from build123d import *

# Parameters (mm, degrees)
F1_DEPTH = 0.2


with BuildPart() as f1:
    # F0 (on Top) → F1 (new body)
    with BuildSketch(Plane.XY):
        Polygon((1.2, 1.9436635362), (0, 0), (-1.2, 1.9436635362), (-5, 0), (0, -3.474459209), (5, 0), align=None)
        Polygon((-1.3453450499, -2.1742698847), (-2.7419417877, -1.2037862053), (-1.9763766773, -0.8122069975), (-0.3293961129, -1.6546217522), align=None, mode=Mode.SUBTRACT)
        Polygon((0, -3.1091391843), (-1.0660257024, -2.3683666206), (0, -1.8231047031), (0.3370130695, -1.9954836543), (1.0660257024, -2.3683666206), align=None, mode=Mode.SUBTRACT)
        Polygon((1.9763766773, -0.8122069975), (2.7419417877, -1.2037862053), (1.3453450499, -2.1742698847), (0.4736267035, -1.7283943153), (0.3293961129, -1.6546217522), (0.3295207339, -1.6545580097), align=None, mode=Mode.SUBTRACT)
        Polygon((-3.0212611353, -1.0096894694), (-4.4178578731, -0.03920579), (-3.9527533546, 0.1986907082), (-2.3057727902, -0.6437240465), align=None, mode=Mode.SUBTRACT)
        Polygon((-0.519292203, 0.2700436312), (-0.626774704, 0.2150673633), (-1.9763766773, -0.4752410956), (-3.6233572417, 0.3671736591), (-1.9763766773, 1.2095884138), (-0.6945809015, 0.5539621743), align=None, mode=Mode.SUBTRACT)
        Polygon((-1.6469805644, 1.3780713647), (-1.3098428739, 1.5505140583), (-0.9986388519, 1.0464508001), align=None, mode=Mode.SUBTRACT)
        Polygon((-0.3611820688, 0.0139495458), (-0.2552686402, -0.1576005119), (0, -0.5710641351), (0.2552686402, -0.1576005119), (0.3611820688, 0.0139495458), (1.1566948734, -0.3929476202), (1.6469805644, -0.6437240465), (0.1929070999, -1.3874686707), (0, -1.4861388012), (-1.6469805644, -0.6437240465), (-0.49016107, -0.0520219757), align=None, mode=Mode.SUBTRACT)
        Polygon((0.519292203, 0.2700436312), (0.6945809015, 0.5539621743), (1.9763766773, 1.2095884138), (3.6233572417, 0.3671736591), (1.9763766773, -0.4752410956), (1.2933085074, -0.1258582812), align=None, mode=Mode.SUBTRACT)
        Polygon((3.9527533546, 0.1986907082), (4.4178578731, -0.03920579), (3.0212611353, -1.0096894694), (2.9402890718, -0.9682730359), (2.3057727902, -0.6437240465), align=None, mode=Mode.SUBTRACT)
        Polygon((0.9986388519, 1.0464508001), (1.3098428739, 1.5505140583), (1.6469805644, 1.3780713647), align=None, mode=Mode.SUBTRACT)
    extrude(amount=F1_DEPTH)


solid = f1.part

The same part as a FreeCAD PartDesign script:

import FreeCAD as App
import Part
import Sketcher

V = App.Vector
Q = App.Units.Quantity

doc = App.newDocument("Part")
body = doc.addObject("PartDesign::Body", "Body")

# Sketch on XY plane
sketch1 = body.newObject("Sketcher::SketchObject", "Sketch")
sketch1.AttachmentSupport = (doc.getObject("XY_Plane"), [""])
sketch1.MapMode = "FlatFace"
sketch1.addGeometry(Part.LineSegment(V(1.2, 1.943664, 0), V(0, 0, 0)), False)
sketch1.addGeometry(Part.LineSegment(V(0, 0, 0), V(-1.2, 1.943664, 0)), False)
sketch1.addGeometry(Part.LineSegment(V(-1.2, 1.943664, 0), V(-5, 0, 0)), False)
sketch1.addGeometry(Part.LineSegment(V(-5, 0, 0), V(0, -3.474459, 0)), False)
sketch1.addGeometry(Part.LineSegment(V(0, -3.474459, 0), V(5, 0, 0)), False)
sketch1.addGeometry(Part.LineSegment(V(5, 0, 0), V(1.2, 1.943664, 0)), False)
sketch1.addGeometry(Part.LineSegment(V(-0.329396, -1.654622, 0), V(-1.345345, -2.17427, 0)), False)
sketch1.addGeometry(Part.LineSegment(V(-1.345345, -2.17427, 0), V(-2.741942, -1.203786, 0)), False)
sketch1.addGeometry(Part.LineSegment(V(-2.741942, -1.203786, 0), V(-1.976377, -0.812207, 0)), False)
sketch1.addGeometry(Part.LineSegment(V(-1.976377, -0.812207, 0), V(-0.329396, -1.654622, 0)), False)
sketch1.addGeometry(Part.LineSegment(V(1.066026, -2.368367, 0), V(0, -3.109139, 0)), False)
sketch1.addGeometry(Part.LineSegment(V(0, -3.109139, 0), V(-1.066026, -2.368367, 0)), False)
sketch1.addGeometry(Part.LineSegment(V(-1.066026, -2.368367, 0), V(0, -1.823105, 0)), False)
sketch1.addGeometry(Part.LineSegment(V(0, -1.823105, 0), V(0.337013, -1.995484, 0)), False)
sketch1.addGeometry(Part.LineSegment(V(0.337013, -1.995484, 0), V(1.066026, -2.368367, 0)), False)
sketch1.addGeometry(Part.LineSegment(V(0.329521, -1.654558, 0), V(1.976377, -0.812207, 0)), False)
sketch1.addGeometry(Part.LineSegment(V(1.976377, -0.812207, 0), V(2.741942, -1.203786, 0)), False)
sketch1.addGeometry(Part.LineSegment(V(2.741942, -1.203786, 0), V(1.345345, -2.17427, 0)), False)
sketch1.addGeometry(Part.LineSegment(V(1.345345, -2.17427, 0), V(0.473627, -1.728394, 0)), False)
sketch1.addGeometry(Part.LineSegment(V(0.473627, -1.728394, 0), V(0.329396, -1.654622, 0)), False)
sketch1.addGeometry(Part.LineSegment(V(0.329396, -1.654622, 0), V(0.329521, -1.654558, 0)), False)
sketch1.addGeometry(Part.LineSegment(V(-2.305773, -0.643724, 0), V(-3.021261, -1.009689, 0)), False)
sketch1.addGeometry(Part.LineSegment(V(-3.021261, -1.009689, 0), V(-4.417858, -0.039206, 0)), False)
sketch1.addGeometry(Part.LineSegment(V(-4.417858, -0.039206, 0), V(-3.952753, 0.198691, 0)), False)
sketch1.addGeometry(Part.LineSegment(V(-3.952753, 0.198691, 0), V(-2.305773, -0.643724, 0)), False)
sketch1.addGeometry(Part.LineSegment(V(-0.694581, 0.553962, 0), V(-0.519292, 0.270044, 0)), False)
sketch1.addGeometry(Part.LineSegment(V(-0.519292, 0.270044, 0), V(-0.626775, 0.215067, 0)), False)
sketch1.addGeometry(Part.LineSegment(V(-0.626775, 0.215067, 0), V(-1.976377, -0.475241, 0)), False)
sketch1.addGeometry(Part.LineSegment(V(-1.976377, -0.475241, 0), V(-3.623357, 0.367174, 0)), False)
sketch1.addGeometry(Part.LineSegment(V(-3.623357, 0.367174, 0), V(-1.976377, 1.209588, 0)), False)
sketch1.addGeometry(Part.LineSegment(V(-1.976377, 1.209588, 0), V(-0.694581, 0.553962, 0)), False)
sketch1.addGeometry(Part.LineSegment(V(-0.998639, 1.046451, 0), V(-1.646981, 1.378071, 0)), False)
sketch1.addGeometry(Part.LineSegment(V(-1.646981, 1.378071, 0), V(-1.309843, 1.550514, 0)), False)
sketch1.addGeometry(Part.LineSegment(V(-1.309843, 1.550514, 0), V(-0.998639, 1.046451, 0)), False)
sketch1.addGeometry(Part.LineSegment(V(-0.490161, -0.052022, 0), V(-0.361182, 0.01395, 0)), False)
sketch1.addGeometry(Part.LineSegment(V(-0.361182, 0.01395, 0), V(-0.255269, -0.157601, 0)), False)
sketch1.addGeometry(Part.LineSegment(V(-0.255269, -0.157601, 0), V(0, -0.571064, 0)), False)
sketch1.addGeometry(Part.LineSegment(V(0, -0.571064, 0), V(0.255269, -0.157601, 0)), False)
sketch1.addGeometry(Part.LineSegment(V(0.255269, -0.157601, 0), V(0.361182, 0.01395, 0)), False)
sketch1.addGeometry(Part.LineSegment(V(0.361182, 0.01395, 0), V(1.156695, -0.392948, 0)), False)
sketch1.addGeometry(Part.LineSegment(V(1.156695, -0.392948, 0), V(1.646981, -0.643724, 0)), False)
sketch1.addGeometry(Part.LineSegment(V(1.646981, -0.643724, 0), V(0.192907, -1.387469, 0)), False)
sketch1.addGeometry(Part.LineSegment(V(0.192907, -1.387469, 0), V(0, -1.486139, 0)), False)
sketch1.addGeometry(Part.LineSegment(V(0, -1.486139, 0), V(-1.646981, -0.643724, 0)), False)
sketch1.addGeometry(Part.LineSegment(V(-1.646981, -0.643724, 0), V(-0.490161, -0.052022, 0)), False)
sketch1.addGeometry(Part.LineSegment(V(1.293309, -0.125858, 0), V(0.519292, 0.270044, 0)), False)
sketch1.addGeometry(Part.LineSegment(V(0.519292, 0.270044, 0), V(0.694581, 0.553962, 0)), False)
sketch1.addGeometry(Part.LineSegment(V(0.694581, 0.553962, 0), V(1.976377, 1.209588, 0)), False)
sketch1.addGeometry(Part.LineSegment(V(1.976377, 1.209588, 0), V(3.623357, 0.367174, 0)), False)
sketch1.addGeometry(Part.LineSegment(V(3.623357, 0.367174, 0), V(1.976377, -0.475241, 0)), False)
sketch1.addGeometry(Part.LineSegment(V(1.976377, -0.475241, 0), V(1.293309, -0.125858, 0)), False)
sketch1.addGeometry(Part.LineSegment(V(2.305773, -0.643724, 0), V(3.952753, 0.198691, 0)), False)
sketch1.addGeometry(Part.LineSegment(V(3.952753, 0.198691, 0), V(4.417858, -0.039206, 0)), False)
sketch1.addGeometry(Part.LineSegment(V(4.417858, -0.039206, 0), V(3.021261, -1.009689, 0)), False)
sketch1.addGeometry(Part.LineSegment(V(3.021261, -1.009689, 0), V(2.940289, -0.968273, 0)), False)
sketch1.addGeometry(Part.LineSegment(V(2.940289, -0.968273, 0), V(2.305773, -0.643724, 0)), False)
sketch1.addGeometry(Part.LineSegment(V(1.646981, 1.378071, 0), V(0.998639, 1.046451, 0)), False)
sketch1.addGeometry(Part.LineSegment(V(0.998639, 1.046451, 0), V(1.309843, 1.550514, 0)), False)
sketch1.addGeometry(Part.LineSegment(V(1.309843, 1.550514, 0), V(1.646981, 1.378071, 0)), False)
sketch1.addConstraint(Sketcher.Constraint("Coincident", 0, 2, 1, 1))
sketch1.addConstraint(Sketcher.Constraint("Coincident", 1, 2, 2, 1))
sketch1.addConstraint(Sketcher.Constraint("Coincident", 2, 2, 3, 1))
sketch1.addConstraint(Sketcher.Constraint("Coincident", 3, 2, 4, 1))
sketch1.addConstraint(Sketcher.Constraint("Coincident", 4, 2, 5, 1))
sketch1.addConstraint(Sketcher.Constraint("Coincident", 5, 2, 0, 1))
sketch1.addConstraint(Sketcher.Constraint("Coincident", 6, 2, 7, 1))
sketch1.addConstraint(Sketcher.Constraint("Coincident", 7, 2, 8, 1))
sketch1.addConstraint(Sketcher.Constraint("Coincident", 8, 2, 9, 1))
sketch1.addConstraint(Sketcher.Constraint("Coincident", 9, 2, 6, 1))
sketch1.addConstraint(Sketcher.Constraint("Coincident", 10, 2, 11, 1))
sketch1.addConstraint(Sketcher.Constraint("Coincident", 11, 2, 12, 1))
sketch1.addConstraint(Sketcher.Constraint("Coincident", 12, 2, 13, 1))
sketch1.addConstraint(Sketcher.Constraint("Coincident", 13, 2, 14, 1))
sketch1.addConstraint(Sketcher.Constraint("Coincident", 14, 2, 10, 1))
sketch1.addConstraint(Sketcher.Constraint("Coincident", 15, 2, 16, 1))
sketch1.addConstraint(Sketcher.Constraint("Coincident", 16, 2, 17, 1))
sketch1.addConstraint(Sketcher.Constraint("Coincident", 17, 2, 18, 1))
sketch1.addConstraint(Sketcher.Constraint("Coincident", 18, 2, 19, 1))
sketch1.addConstraint(Sketcher.Constraint("Coincident", 19, 2, 20, 1))
sketch1.addConstraint(Sketcher.Constraint("Coincident", 20, 2, 15, 1))
sketch1.addConstraint(Sketcher.Constraint("Coincident", 21, 2, 22, 1))
sketch1.addConstraint(Sketcher.Constraint("Coincident", 22, 2, 23, 1))
sketch1.addConstraint(Sketcher.Constraint("Coincident", 23, 2, 24, 1))
sketch1.addConstraint(Sketcher.Constraint("Coincident", 24, 2, 21, 1))
sketch1.addConstraint(Sketcher.Constraint("Coincident", 25, 2, 26, 1))
sketch1.addConstraint(Sketcher.Constraint("Coincident", 26, 2, 27, 1))
sketch1.addConstraint(Sketcher.Constraint("Coincident", 27, 2, 28, 1))
sketch1.addConstraint(Sketcher.Constraint("Coincident", 28, 2, 29, 1))
sketch1.addConstraint(Sketcher.Constraint("Coincident", 29, 2, 30, 1))
sketch1.addConstraint(Sketcher.Constraint("Coincident", 30, 2, 25, 1))
sketch1.addConstraint(Sketcher.Constraint("Coincident", 31, 2, 32, 1))
sketch1.addConstraint(Sketcher.Constraint("Coincident", 32, 2, 33, 1))
sketch1.addConstraint(Sketcher.Constraint("Coincident", 33, 2, 31, 1))
sketch1.addConstraint(Sketcher.Constraint("Coincident", 34, 2, 35, 1))
sketch1.addConstraint(Sketcher.Constraint("Coincident", 35, 2, 36, 1))
sketch1.addConstraint(Sketcher.Constraint("Coincident", 36, 2, 37, 1))
sketch1.addConstraint(Sketcher.Constraint("Coincident", 37, 2, 38, 1))
sketch1.addConstraint(Sketcher.Constraint("Coincident", 38, 2, 39, 1))
sketch1.addConstraint(Sketcher.Constraint("Coincident", 39, 2, 40, 1))
sketch1.addConstraint(Sketcher.Constraint("Coincident", 40, 2, 41, 1))
sketch1.addConstraint(Sketcher.Constraint("Coincident", 41, 2, 42, 1))
sketch1.addConstraint(Sketcher.Constraint("Coincident", 42, 2, 43, 1))
sketch1.addConstraint(Sketcher.Constraint("Coincident", 43, 2, 44, 1))
sketch1.addConstraint(Sketcher.Constraint("Coincident", 44, 2, 34, 1))
sketch1.addConstraint(Sketcher.Constraint("Coincident", 45, 2, 46, 1))
sketch1.addConstraint(Sketcher.Constraint("Coincident", 46, 2, 47, 1))
sketch1.addConstraint(Sketcher.Constraint("Coincident", 47, 2, 48, 1))
sketch1.addConstraint(Sketcher.Constraint("Coincident", 48, 2, 49, 1))
sketch1.addConstraint(Sketcher.Constraint("Coincident", 49, 2, 50, 1))
sketch1.addConstraint(Sketcher.Constraint("Coincident", 50, 2, 45, 1))
sketch1.addConstraint(Sketcher.Constraint("Coincident", 51, 2, 52, 1))
sketch1.addConstraint(Sketcher.Constraint("Coincident", 52, 2, 53, 1))
sketch1.addConstraint(Sketcher.Constraint("Coincident", 53, 2, 54, 1))
sketch1.addConstraint(Sketcher.Constraint("Coincident", 54, 2, 55, 1))
sketch1.addConstraint(Sketcher.Constraint("Coincident", 55, 2, 51, 1))
sketch1.addConstraint(Sketcher.Constraint("Coincident", 56, 2, 57, 1))
sketch1.addConstraint(Sketcher.Constraint("Coincident", 57, 2, 58, 1))
sketch1.addConstraint(Sketcher.Constraint("Coincident", 58, 2, 56, 1))
sketch1.addConstraint(Sketcher.Constraint("Coincident", 0, 2, -1, 1))
sketch1.addConstraint(Sketcher.Constraint("Symmetric", 2, 2, 4, 2, -1, 1))
sketch1.addConstraint(Sketcher.Constraint("Symmetric", 1, 2, 5, 2, -2))
sketch1.addConstraint(Sketcher.Constraint("Symmetric", 11, 2, 14, 2, -2))
sketch1.addConstraint(Sketcher.Constraint("Symmetric", 8, 2, 15, 2, -2))
sketch1.addConstraint(Sketcher.Constraint("Symmetric", 7, 2, 16, 2, -2))
sketch1.addConstraint(Sketcher.Constraint("Symmetric", 6, 2, 17, 2, -2))
sketch1.addConstraint(Sketcher.Constraint("Symmetric", 9, 2, 19, 2, -2))
sketch1.addConstraint(Sketcher.Constraint("Symmetric", 35, 2, 37, 2, -2))
sketch1.addConstraint(Sketcher.Constraint("Symmetric", 34, 2, 38, 2, -2))
sketch1.addConstraint(Sketcher.Constraint("Symmetric", 40, 2, 43, 2, -2))
sketch1.addConstraint(Sketcher.Constraint("Symmetric", 25, 2, 45, 2, -2))
sketch1.addConstraint(Sketcher.Constraint("Symmetric", 30, 2, 46, 2, -2))
sketch1.addConstraint(Sketcher.Constraint("Symmetric", 29, 2, 47, 2, -2))
sketch1.addConstraint(Sketcher.Constraint("Symmetric", 28, 2, 48, 2, -2))
sketch1.addConstraint(Sketcher.Constraint("Symmetric", 27, 2, 49, 2, -2))
sketch1.addConstraint(Sketcher.Constraint("Symmetric", 23, 2, 51, 2, -2))
sketch1.addConstraint(Sketcher.Constraint("Symmetric", 22, 2, 52, 2, -2))
sketch1.addConstraint(Sketcher.Constraint("Symmetric", 21, 2, 53, 2, -2))
sketch1.addConstraint(Sketcher.Constraint("Symmetric", 24, 2, 55, 2, -2))
sketch1.addConstraint(Sketcher.Constraint("Symmetric", 33, 2, 56, 2, -2))
sketch1.addConstraint(Sketcher.Constraint("Symmetric", 32, 2, 57, 2, -2))
sketch1.addConstraint(Sketcher.Constraint("Symmetric", 31, 2, 58, 2, -2))
sketch1.addConstraint(Sketcher.Constraint("PointOnObject", 2, 2, -1))
sketch1.addConstraint(Sketcher.Constraint("PointOnObject", 3, 2, -2))
sketch1.addConstraint(Sketcher.Constraint("PointOnObject", 10, 2, -2))
sketch1.addConstraint(Sketcher.Constraint("PointOnObject", 12, 2, -2))
sketch1.addConstraint(Sketcher.Constraint("PointOnObject", 36, 2, -2))
sketch1.addConstraint(Sketcher.Constraint("PointOnObject", 42, 2, -2))
sketch1.addConstraint(Sketcher.Constraint("Parallel", 2, 6))
sketch1.addConstraint(Sketcher.Constraint("Parallel", 3, 7))
sketch1.addConstraint(Sketcher.Constraint("Parallel", 6, 8))
sketch1.addConstraint(Sketcher.Constraint("Parallel", 5, 9))
sketch1.addConstraint(Sketcher.Constraint("Parallel", 4, 10))
sketch1.addConstraint(Sketcher.Constraint("Parallel", 8, 12))
sketch1.addConstraint(Sketcher.Constraint("Parallel", 9, 13))
sketch1.addConstraint(Sketcher.Constraint("Parallel", 12, 15))
sketch1.addConstraint(Sketcher.Constraint("Parallel", 16, 18))
sketch1.addConstraint(Sketcher.Constraint("Parallel", 15, 21))
sketch1.addConstraint(Sketcher.Constraint("Parallel", 11, 22))
sketch1.addConstraint(Sketcher.Constraint("Parallel", 21, 23))
sketch1.addConstraint(Sketcher.Constraint("Parallel", 19, 24))
sketch1.addConstraint(Sketcher.Constraint("Parallel", 1, 25))
sketch1.addConstraint(Sketcher.Constraint("Parallel", 23, 26))
sketch1.addConstraint(Sketcher.Constraint("Parallel", 26, 27))
sketch1.addConstraint(Sketcher.Constraint("Parallel", 24, 28))
sketch1.addConstraint(Sketcher.Constraint("Parallel", 27, 29))
sketch1.addConstraint(Sketcher.Constraint("Parallel", 28, 30))
sketch1.addConstraint(Sketcher.Constraint("Parallel", 30, 31))
sketch1.addConstraint(Sketcher.Constraint("Parallel", 29, 32))
sketch1.addConstraint(Sketcher.Constraint("Parallel", 25, 33))
sketch1.addConstraint(Sketcher.Constraint("Parallel", 32, 34))
sketch1.addConstraint(Sketcher.Constraint("Parallel", 33, 35))
sketch1.addConstraint(Sketcher.Constraint("Parallel", 35, 36))
sketch1.addConstraint(Sketcher.Constraint("Parallel", 31, 39))
sketch1.addConstraint(Sketcher.Constraint("Parallel", 39, 40))
sketch1.addConstraint(Sketcher.Constraint("Parallel", 34, 41))
sketch1.addConstraint(Sketcher.Constraint("Parallel", 41, 42))
sketch1.addConstraint(Sketcher.Constraint("Parallel", 43, 45))
sketch1.addConstraint(Sketcher.Constraint("Parallel", 52, 54))
sketch1.addConstraint(Sketcher.Constraint("Horizontal", 24, 2, 40, 2))
sketch1.addConstraint(Sketcher.Constraint("Vertical", 8, 2, 27, 2))
sketch1.addConstraint(Sketcher.Constraint("Vertical", 27, 2, 29, 2))
sketch1.addConstraint(Sketcher.Constraint("Vertical", 31, 2, 43, 2))
sketch1.addConstraint(Sketcher.Constraint("Equal", 17, 22))
sketch1.addConstraint(Sketcher.Constraint("Equal", 24, 28))
sketch1.addConstraint(Sketcher.Constraint("Equal", 29, 43))
sketch1.addConstraint(Sketcher.Constraint("DistanceX", 2, 2, -1, 1, Q("5 mm")))
sketch1.addConstraint(Sketcher.Constraint("DistanceX", 1, 2, -1, 1, Q("1.2 mm")))
sketch1.addConstraint(Sketcher.Constraint("DistanceY", 8, 2, 22, 2, Q("0.773001 mm")))
sketch1.addConstraint(Sketcher.Constraint("DistanceX", 24, 2, 26, 2, Q("1.678998 mm")))
sketch1.addConstraint(Sketcher.Constraint("Distance", 27, Q("1.515899 mm")))
sketch1.addConstraint(Sketcher.Constraint("Distance", 40, Q("0.550699 mm")))
sketch1.addConstraint(Sketcher.Constraint("Distance", 55, Q("0.712701 mm")))
sketch1.addConstraint(Sketcher.Constraint("DistanceY", 35, 2, -1, 1, Q("0.157601 mm")))
sketch1.addConstraint(Sketcher.Constraint("DistanceX", 18, 2, 14, 2, Q("0.592399 mm")))
sketch1.addConstraint(Sketcher.Constraint("DistanceX", 8, 2, 26, 2, Q("1.349602 mm")))
sketch1.addConstraint(Sketcher.Constraint("DistanceX", 22, 2, 28, 2, Q("0.794501 mm")))
sketch1.addConstraint(Sketcher.Constraint("DistanceY", 30, 2, 1, 2, Q("1.389701 mm")))
sketch1.addConstraint(Sketcher.Constraint("DistanceX", 31, 2, 30, 2, Q("0.9524 mm")))
sketch1.addConstraint(Sketcher.Constraint("DistanceX", 30, 2, 34, 2, Q("0.333399 mm")))
sketch1.addConstraint(Sketcher.Constraint("DistanceY", 34, 2, 33, 2, Q("1.032501 mm")))
sketch1.addConstraint(Sketcher.Constraint("DistanceY", 50, 2, 45, 2, Q("0.395902 mm")))
sketch1.addConstraint(Sketcher.Constraint("Distance", 9, Q("1.849921 mm")))
sketch1.addConstraint(Sketcher.Constraint("Distance", 12, Q("1.197381 mm")))
sketch1.addConstraint(Sketcher.Constraint("Distance", 13, Q("0.37854 mm")))
sketch1.addConstraint(Sketcher.Constraint("Distance", 15, Q("1.849781 mm")))
sketch1.addConstraint(Sketcher.Constraint("Distance", 18, Q("0.979131 mm")))
sketch1.addConstraint(Sketcher.Constraint("Distance", 21, Q("0.803651 mm")))
sketch1.addConstraint(Sketcher.Constraint("Distance", 25, Q("0.33367 mm")))
sketch1.addConstraint(Sketcher.Constraint("Distance", 31, Q("0.72823 mm")))
sketch1.addConstraint(Sketcher.Constraint("Distance", 34, Q("0.144872 mm")))
sketch1.addConstraint(Sketcher.Constraint("Distance", 35, Q("0.201611 mm")))
sketch1.addConstraint(Sketcher.Constraint("DistanceY", 10, 2, -1, 1, Q("3.109139 mm")))
sketch1.addConstraint(Sketcher.Constraint("DistanceY", 41, 2, -1, 1, Q("1.387469 mm")))
pad1 = body.newObject("PartDesign::Pad", "Pad")
pad1.Profile = sketch1
pad1.Length = 0.2

doc.recompute()
